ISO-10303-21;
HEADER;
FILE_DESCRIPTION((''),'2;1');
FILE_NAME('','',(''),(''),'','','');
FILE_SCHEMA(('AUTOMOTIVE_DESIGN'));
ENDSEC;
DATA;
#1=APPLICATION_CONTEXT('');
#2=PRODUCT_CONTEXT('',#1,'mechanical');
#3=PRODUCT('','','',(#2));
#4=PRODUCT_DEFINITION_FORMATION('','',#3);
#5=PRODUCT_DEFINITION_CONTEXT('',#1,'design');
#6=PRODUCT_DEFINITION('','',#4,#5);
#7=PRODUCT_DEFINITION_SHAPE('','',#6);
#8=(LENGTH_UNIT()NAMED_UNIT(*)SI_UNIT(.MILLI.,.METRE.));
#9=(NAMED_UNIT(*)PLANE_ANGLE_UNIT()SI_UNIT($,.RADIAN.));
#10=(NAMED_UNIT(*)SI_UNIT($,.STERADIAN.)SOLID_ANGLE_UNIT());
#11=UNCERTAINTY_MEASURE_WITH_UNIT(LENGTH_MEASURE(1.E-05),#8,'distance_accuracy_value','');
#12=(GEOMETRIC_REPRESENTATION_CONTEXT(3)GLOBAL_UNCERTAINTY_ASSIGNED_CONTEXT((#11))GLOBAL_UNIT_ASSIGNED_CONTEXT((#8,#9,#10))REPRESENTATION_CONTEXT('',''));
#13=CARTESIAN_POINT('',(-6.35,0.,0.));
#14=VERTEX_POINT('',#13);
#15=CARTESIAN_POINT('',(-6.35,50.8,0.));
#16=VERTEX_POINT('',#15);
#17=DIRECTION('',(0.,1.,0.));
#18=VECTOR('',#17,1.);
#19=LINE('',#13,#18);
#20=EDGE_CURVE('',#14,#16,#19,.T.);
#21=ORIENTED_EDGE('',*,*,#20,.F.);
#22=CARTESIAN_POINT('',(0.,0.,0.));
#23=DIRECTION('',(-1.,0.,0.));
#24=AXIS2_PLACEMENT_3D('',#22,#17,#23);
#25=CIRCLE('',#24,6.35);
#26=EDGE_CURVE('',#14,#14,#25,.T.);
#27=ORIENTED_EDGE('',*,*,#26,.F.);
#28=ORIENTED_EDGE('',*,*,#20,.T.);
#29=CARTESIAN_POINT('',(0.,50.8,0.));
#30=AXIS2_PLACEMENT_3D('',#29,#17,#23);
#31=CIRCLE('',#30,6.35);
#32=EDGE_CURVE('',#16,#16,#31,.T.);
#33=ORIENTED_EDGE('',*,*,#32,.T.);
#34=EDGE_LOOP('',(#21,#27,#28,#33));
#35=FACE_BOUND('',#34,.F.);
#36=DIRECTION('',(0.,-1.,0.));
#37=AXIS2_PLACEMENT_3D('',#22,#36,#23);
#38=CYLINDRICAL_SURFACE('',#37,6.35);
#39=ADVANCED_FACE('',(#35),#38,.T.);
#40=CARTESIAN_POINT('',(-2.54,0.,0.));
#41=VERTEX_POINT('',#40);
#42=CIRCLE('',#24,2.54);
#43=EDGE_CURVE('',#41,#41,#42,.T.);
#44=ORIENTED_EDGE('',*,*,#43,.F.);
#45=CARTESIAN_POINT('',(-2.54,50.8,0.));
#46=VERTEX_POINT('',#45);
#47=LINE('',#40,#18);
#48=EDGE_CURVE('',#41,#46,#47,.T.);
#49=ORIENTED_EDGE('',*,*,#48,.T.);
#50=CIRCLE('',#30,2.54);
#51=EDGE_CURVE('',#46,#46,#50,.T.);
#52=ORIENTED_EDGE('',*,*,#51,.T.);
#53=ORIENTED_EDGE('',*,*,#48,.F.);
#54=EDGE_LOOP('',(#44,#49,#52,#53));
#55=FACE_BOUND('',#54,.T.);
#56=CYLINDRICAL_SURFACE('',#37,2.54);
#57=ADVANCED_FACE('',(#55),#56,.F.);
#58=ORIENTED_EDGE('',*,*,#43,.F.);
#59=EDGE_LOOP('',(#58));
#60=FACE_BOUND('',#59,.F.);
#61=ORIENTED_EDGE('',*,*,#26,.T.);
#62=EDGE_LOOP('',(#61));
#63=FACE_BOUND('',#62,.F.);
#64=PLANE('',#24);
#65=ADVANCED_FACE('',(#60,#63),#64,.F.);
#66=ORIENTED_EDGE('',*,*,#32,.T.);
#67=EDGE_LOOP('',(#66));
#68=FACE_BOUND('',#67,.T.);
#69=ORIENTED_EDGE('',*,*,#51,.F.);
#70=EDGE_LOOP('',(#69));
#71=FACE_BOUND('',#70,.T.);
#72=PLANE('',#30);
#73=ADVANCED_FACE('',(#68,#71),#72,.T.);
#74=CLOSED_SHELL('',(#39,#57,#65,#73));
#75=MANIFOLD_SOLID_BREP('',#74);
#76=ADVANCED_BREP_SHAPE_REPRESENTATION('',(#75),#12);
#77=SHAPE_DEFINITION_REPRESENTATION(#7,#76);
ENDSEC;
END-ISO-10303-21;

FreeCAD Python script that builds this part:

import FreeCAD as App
import Part
import Sketcher
Q = App.Units.Quantity

doc = App.newDocument("Part")
body = doc.addObject("PartDesign::Body", "Body")

# Sketch on XZ plane
sketch1 = doc.addObject("Sketcher::SketchObject", "Sketch")
body.addObject(sketch1)
sketch1.AttachmentSupport = (doc.XZ_Plane, [""])
sketch1.MapMode = "FlatFace"
sketch1.addGeometry(Part.Circle(App.Vector(0, 0, 0), App.Vector(0, 0, 1), 6.35), False)
sketch1.addGeometry(Part.Circle(App.Vector(0, 0, 0), App.Vector(0, 0, 1), 2.54), False)
sketch1.addConstraint(Sketcher.Constraint("Coincident", 0, 3, -1, 1))
sketch1.addConstraint(Sketcher.Constraint("Coincident", 1, 3, -1, 1))
sketch1.addConstraint(Sketcher.Constraint("Diameter", 0, Q("0.5 in")))
sketch1.addConstraint(Sketcher.Constraint("Diameter", 1, Q("0.2 in")))
pad1 = doc.addObject("PartDesign::Pad", "Pad")
body.addObject(pad1)
pad1.Profile = sketch1
pad1.Length = Q("2 in")
pad1.Reversed = True

doc.recompute()
